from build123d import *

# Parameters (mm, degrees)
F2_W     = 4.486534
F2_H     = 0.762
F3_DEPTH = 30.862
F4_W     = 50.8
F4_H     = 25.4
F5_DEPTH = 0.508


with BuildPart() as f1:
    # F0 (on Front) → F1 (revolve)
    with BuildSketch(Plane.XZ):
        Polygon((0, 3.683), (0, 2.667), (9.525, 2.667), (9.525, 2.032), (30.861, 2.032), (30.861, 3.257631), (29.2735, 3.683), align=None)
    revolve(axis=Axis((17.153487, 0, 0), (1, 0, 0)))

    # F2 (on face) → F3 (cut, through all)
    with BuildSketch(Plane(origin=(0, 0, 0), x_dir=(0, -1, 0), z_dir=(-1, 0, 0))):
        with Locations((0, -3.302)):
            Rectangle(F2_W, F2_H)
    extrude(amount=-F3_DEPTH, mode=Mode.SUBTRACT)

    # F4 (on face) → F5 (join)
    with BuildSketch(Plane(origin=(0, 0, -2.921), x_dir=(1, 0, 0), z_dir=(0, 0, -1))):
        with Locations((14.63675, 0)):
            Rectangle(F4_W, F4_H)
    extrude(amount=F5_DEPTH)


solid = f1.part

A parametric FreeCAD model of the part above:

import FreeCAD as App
import Part
import Sketcher

V = App.Vector
Q = App.Units.Quantity

doc = App.newDocument("Part")
params = doc.addObject("Spreadsheet::Sheet", "Params")
for row, (alias, value) in enumerate([
    ("sketch1_width", "0.84 in"),
    ("sketch1_height", "0.04 in"),
    ("sketch1_width2", "0.375 in"),
    ("sketch1_height2", "0.025 in"),
    ("revolution_angle", "360 deg"),
    ("sketch2_height", "0.03 in"),
    ("sketch3_width", "2 in"),
    ("sketch3_height", "1 in"),
    ("pad1_length", "0.02 in"),
], start=1):
    params.set(f"A{row}", alias)
    params.set(f"B{row}", "=" + value)
    params.setAlias(f"B{row}", alias)

body = doc.addObject("PartDesign::Body", "Body")

# Sketch on XZ plane
sketch1 = doc.addObject("Sketcher::SketchObject", "Sketch")
body.addObject(sketch1)
sketch1.AttachmentSupport = (doc.XZ_Plane, [""])
sketch1.MapMode = "FlatFace"
sketch1.addGeometry([
    Part.LineSegment(V(0, 3.7, 0), V(0, 2.7, 0)),  # 0
    Part.LineSegment(V(0, 2.7, 0), V(9.5, 2.7, 0)),  # 1
    Part.LineSegment(V(9.5, 2.7, 0), V(9.5, 2, 0)),  # 2
    Part.LineSegment(V(9.5, 2, 0), V(30.9, 2, 0)),  # 3
    Part.LineSegment(V(30.9, 2, 0), V(30.9, 3.3, 0)),  # 4
    Part.LineSegment(V(30.9, 3.3, 0), V(29.3, 3.7, 0)),  # 5
    Part.LineSegment(V(29.3, 3.7, 0), V(0, 3.7, 0)),  # 6
], False)
sketch1.addConstraint([
    Sketcher.Constraint("Coincident", 0, 2, 1, 1),
    Sketcher.Constraint("Coincident", 1, 2, 2, 1),
    Sketcher.Constraint("Coincident", 2, 2, 3, 1),
    Sketcher.Constraint("Coincident", 3, 2, 4, 1),
    Sketcher.Constraint("Coincident", 4, 2, 5, 1),
    Sketcher.Constraint("Coincident", 5, 2, 6, 1),
    Sketcher.Constraint("Coincident", 6, 2, 0, 1),
    Sketcher.Constraint("Vertical", 0),
    Sketcher.Constraint("Horizontal", 1),
    Sketcher.Constraint("Vertical", 2),
    Sketcher.Constraint("Horizontal", 3),
    Sketcher.Constraint("Vertical", 4),
    Sketcher.Constraint("Horizontal", 6),
    Sketcher.Constraint("PointOnObject", 0, 2, -2),
    Sketcher.Constraint("Angle", 5, Q("165.000012 deg")),
    Sketcher.Constraint("DistanceX", 3, 1, 3, 2, Q("0.84 in")),
    Sketcher.Constraint("DistanceY", 0, 2, 0, 1, Q("0.04 in")),
    Sketcher.Constraint("DistanceX", 1, 1, 1, 2, Q("0.375 in")),
    Sketcher.Constraint("DistanceY", 2, 2, 2, 1, Q("0.025 in")),
    Sketcher.Constraint("DistanceY", -1, 1, 2, 2, Q("0.08 in")),
    Sketcher.Constraint("DistanceX", 6, 2, 6, 1, Q("1.1525 in")),
])
sketch1.setExpression("Constraints[15]", "Params.sketch1_width")
sketch1.setExpression("Constraints[16]", "Params.sketch1_height")
sketch1.setExpression("Constraints[17]", "Params.sketch1_width2")
sketch1.setExpression("Constraints[18]", "Params.sketch1_height2")
revolution = doc.addObject("PartDesign::Revolution", "Revolution")
body.addObject(revolution)
revolution.Profile = sketch1
revolution.ReferenceAxis = (sketch1, ["H_Axis"])
revolution.setExpression("Angle", "Params.revolution_angle")

# Sketch on YZ plane
sketch2 = doc.addObject("Sketcher::SketchObject", "Sketch001")
body.addObject(sketch2)
sketch2.AttachmentSupport = (doc.YZ_Plane, [""])
sketch2.MapMode = "FlatFace"
sketch2.addGeometry([
    Part.LineSegment(V(2.2, -2.9, 0), V(2.2, -3.7, 0)),
    Part.LineSegment(V(2.2, -3.7, 0), V(-2.2, -3.7, 0)),
    Part.LineSegment(V(-2.2, -3.7, 0), V(-2.2, -2.9, 0)),
    Part.LineSegment(V(-2.2, -2.9, 0), V(2.2, -2.9, 0)),
], False)
sketch2.addConstraint([
    Sketcher.Constraint("Coincident", 0, 2, 1, 1),
    Sketcher.Constraint("Coincident", 1, 2, 2, 1),
    Sketcher.Constraint("Coincident", 2, 2, 3, 1),
    Sketcher.Constraint("Coincident", 3, 2, 0, 1),
    Sketcher.Constraint("Vertical", 0),
    Sketcher.Constraint("Horizontal", 1),
    Sketcher.Constraint("Vertical", 2),
    Sketcher.Constraint("Horizontal", 3),
    Sketcher.Constraint("DistanceY", 0, 2, 0, 1, Q("0.03 in")),
    Sketcher.Constraint("DistanceY", 0, 2, -1, 1, Q("0.145 in")),
    Sketcher.Constraint("DistanceX", 1, 2, 1, 1, Q("4.486534 mm")),
    Sketcher.Constraint("DistanceX", -1, 1, 0, 2, Q("2.243267 mm")),
])
sketch2.setExpression("Constraints[8]", "Params.sketch2_height")
pocket1 = doc.addObject("PartDesign::Pocket", "Pocket")
body.addObject(pocket1)
pocket1.Profile = sketch2
pocket1.Type = "ThroughAll"
pocket1.Reversed = True

# Sketch on XY plane
sketch3 = doc.addObject("Sketcher::SketchObject", "Sketch002")
body.addObject(sketch3)
sketch3.AttachmentSupport = (doc.XY_Plane, [""])
sketch3.MapMode = "FlatFace"
sketch3.AttachmentOffset = App.Placement(V(0, 0, -0.115 * 25.4), App.Rotation())
sketch3.addGeometry([
    Part.LineSegment(V(-11, -13, 0), V(-11, 13, 0)),
    Part.LineSegment(V(-11, 13, 0), V(40, 13, 0)),
    Part.LineSegment(V(40, 13, 0), V(40, -13, 0)),
    Part.LineSegment(V(40, -13, 0), V(-11, -13, 0)),
], False)
sketch3.addConstraint([
    Sketcher.Constraint("Coincident", 0, 2, 1, 1),
    Sketcher.Constraint("Coincident", 1, 2, 2, 1),
    Sketcher.Constraint("Coincident", 2, 2, 3, 1),
    Sketcher.Constraint("Coincident", 3, 2, 0, 1),
    Sketcher.Constraint("Vertical", 0),
    Sketcher.Constraint("Horizontal", 1),
    Sketcher.Constraint("Vertical", 2),
    Sketcher.Constraint("Horizontal", 3),
    Sketcher.Constraint("DistanceX", 1, 1, 1, 2, Q("2 in")),
    Sketcher.Constraint("DistanceY", 0, 1, 0, 2, Q("1 in")),
    Sketcher.Constraint("DistanceY", -1, 1, 0, 2, Q("0.5 in")),
    Sketcher.Constraint("DistanceX", 0, 2, -1, 1, Q("10.76325 mm")),
])
sketch3.setExpression("Constraints[8]", "Params.sketch3_width")
sketch3.setExpression("Constraints[9]", "Params.sketch3_height")
pad1 = doc.addObject("PartDesign::Pad", "Pad")
body.addObject(pad1)
pad1.Profile = sketch3
pad1.setExpression("Length", "Params.pad1_length")
pad1.Reversed = True

doc.recompute()
